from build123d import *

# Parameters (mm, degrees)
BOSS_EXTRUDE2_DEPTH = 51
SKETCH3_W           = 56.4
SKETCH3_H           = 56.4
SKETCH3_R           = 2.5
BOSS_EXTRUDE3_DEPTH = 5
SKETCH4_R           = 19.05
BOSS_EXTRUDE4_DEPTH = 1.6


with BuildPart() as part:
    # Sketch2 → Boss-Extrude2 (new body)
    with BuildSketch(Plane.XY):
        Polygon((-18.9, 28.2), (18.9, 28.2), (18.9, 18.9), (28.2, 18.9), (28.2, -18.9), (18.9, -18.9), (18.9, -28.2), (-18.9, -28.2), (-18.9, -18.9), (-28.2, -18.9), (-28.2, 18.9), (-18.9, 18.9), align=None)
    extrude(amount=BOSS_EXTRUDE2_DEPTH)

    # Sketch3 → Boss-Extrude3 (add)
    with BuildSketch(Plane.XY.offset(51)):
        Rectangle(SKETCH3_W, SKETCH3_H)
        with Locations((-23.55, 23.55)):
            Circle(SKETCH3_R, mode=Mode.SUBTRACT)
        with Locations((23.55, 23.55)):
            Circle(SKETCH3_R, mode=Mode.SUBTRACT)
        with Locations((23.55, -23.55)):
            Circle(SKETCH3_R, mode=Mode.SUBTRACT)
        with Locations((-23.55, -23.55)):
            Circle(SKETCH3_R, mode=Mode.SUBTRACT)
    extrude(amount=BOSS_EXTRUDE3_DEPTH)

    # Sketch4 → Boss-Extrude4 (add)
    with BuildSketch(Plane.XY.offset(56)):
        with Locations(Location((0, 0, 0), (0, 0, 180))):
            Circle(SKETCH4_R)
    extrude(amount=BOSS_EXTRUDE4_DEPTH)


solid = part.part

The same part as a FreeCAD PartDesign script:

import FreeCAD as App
import Part
import Sketcher

V = App.Vector

doc = App.newDocument("Part")
body = doc.addObject("PartDesign::Body", "Body")

sketch1 = body.newObject("Sketcher::SketchObject", "Sketch")
sketch1.AttachmentSupport = (doc.getObject("XY_Plane"), [""])
sketch1.MapMode = "FlatFace"
sketch1.addGeometry(Part.LineSegment(V(19, 28, 0), V(-19, 28, 0)), False)
sketch1.addGeometry(Part.LineSegment(V(-19, 28, 0), V(-19, 19, 0)), False)
sketch1.addGeometry(Part.LineSegment(V(-19, 19, 0), V(-28, 19, 0)), False)
sketch1.addGeometry(Part.LineSegment(V(-28, 19, 0), V(-28, -19, 0)), False)
sketch1.addGeometry(Part.LineSegment(V(-28, -19, 0), V(-19, -19, 0)), False)
sketch1.addGeometry(Part.LineSegment(V(-19, -19, 0), V(-19, -28, 0)), False)
sketch1.addGeometry(Part.LineSegment(V(-19, -28, 0), V(19, -28, 0)), False)
sketch1.addGeometry(Part.LineSegment(V(19, -28, 0), V(19, -19, 0)), False)
sketch1.addGeometry(Part.LineSegment(V(19, -19, 0), V(28, -19, 0)), False)
sketch1.addGeometry(Part.LineSegment(V(28, -19, 0), V(28, 19, 0)), False)
sketch1.addGeometry(Part.LineSegment(V(28, 19, 0), V(19, 19, 0)), False)
sketch1.addGeometry(Part.LineSegment(V(19, 19, 0), V(19, 28, 0)), False)
sketch1.addConstraint(Sketcher.Constraint("Coincident", 0, 2, 1, 1))
sketch1.addConstraint(Sketcher.Constraint("Coincident", 1, 2, 2, 1))
sketch1.addConstraint(Sketcher.Constraint("Coincident", 2, 2, 3, 1))
sketch1.addConstraint(Sketcher.Constraint("Coincident", 3, 2, 4, 1))
sketch1.addConstraint(Sketcher.Constraint("Coincident", 4, 2, 5, 1))
sketch1.addConstraint(Sketcher.Constraint("Coincident", 5, 2, 6, 1))
sketch1.addConstraint(Sketcher.Constraint("Coincident", 6, 2, 7, 1))
sketch1.addConstraint(Sketcher.Constraint("Coincident", 7, 2, 8, 1))
sketch1.addConstraint(Sketcher.Constraint("Coincident", 8, 2, 9, 1))
sketch1.addConstraint(Sketcher.Constraint("Coincident", 9, 2, 10, 1))
sketch1.addConstraint(Sketcher.Constraint("Coincident", 10, 2, 11, 1))
sketch1.addConstraint(Sketcher.Constraint("Coincident", 11, 2, 0, 1))
sketch1.addConstraint(Sketcher.Constraint("Horizontal", 0))
sketch1.addConstraint(Sketcher.Constraint("Vertical", 1))
sketch1.addConstraint(Sketcher.Constraint("Horizontal", 2))
sketch1.addConstraint(Sketcher.Constraint("Vertical", 3))
sketch1.addConstraint(Sketcher.Constraint("Horizontal", 4))
sketch1.addConstraint(Sketcher.Constraint("Vertical", 5))
sketch1.addConstraint(Sketcher.Constraint("Horizontal", 6))
sketch1.addConstraint(Sketcher.Constraint("Vertical", 7))
sketch1.addConstraint(Sketcher.Constraint("Horizontal", 8))
sketch1.addConstraint(Sketcher.Constraint("Vertical", 9))
sketch1.addConstraint(Sketcher.Constraint("Horizontal", 10))
sketch1.addConstraint(Sketcher.Constraint("Vertical", 11))
sketch1.addConstraint(Sketcher.Constraint("Symmetric", 0, 2, 6, 2, -1, 1))
sketch1.addConstraint(Sketcher.Constraint("Symmetric", 2, 2, 8, 2, -1, 1))
sketch1.addConstraint(Sketcher.Constraint("Symmetric", 4, 2, 10, 2, -1, 1))
sketch1.addConstraint(Sketcher.Constraint("Symmetric", 4, 2, 7, 2, -2))
sketch1.addConstraint(Sketcher.Constraint("Equal", 10, 1))
sketch1.addConstraint(Sketcher.Constraint("Equal", 6, 3))
sketch1.addConstraint(Sketcher.Constraint("DistanceX", 0, 2, 0, 1, 37.8))
sketch1.addConstraint(Sketcher.Constraint("DistanceX", 2, 2, 2, 1, 9.3))
pad1 = body.newObject("PartDesign::Pad", "Pad")
pad1.Profile = sketch1
pad1.Length = 51

sketch2 = body.newObject("Sketcher::SketchObject", "Sketch001")
sketch2.AttachmentSupport = (doc.getObject("XY_Plane"), [""])
sketch2.MapMode = "FlatFace"
sketch2.AttachmentOffset = App.Placement(V(0, 0, 51), App.Rotation())
sketch2.addGeometry(Part.LineSegment(V(-28.2, 28.2, 0), V(-28.2, -28.2, 0)), False)
sketch2.addGeometry(Part.LineSegment(V(-28.2, -28.2, 0), V(28.2, -28.2, 0)), False)
sketch2.addGeometry(Part.LineSegment(V(28.2, -28.2, 0), V(28.2, 28.2, 0)), False)
sketch2.addGeometry(Part.LineSegment(V(28.2, 28.2, 0), V(-28.2, 28.2, 0)), False)
sketch2.addGeometry(Part.Circle(V(-23.6, -23.6, 0), V(0, 0, 1), 2.5), False)
sketch2.addGeometry(Part.Circle(V(23.6, -23.6, 0), V(0, 0, 1), 2.5), False)
sketch2.addGeometry(Part.Circle(V(-23.6, 23.6, 0), V(0, 0, 1), 2.5), False)
sketch2.addGeometry(Part.Circle(V(23.6, 23.6, 0), V(0, 0, 1), 2.5), False)
sketch2.addConstraint(Sketcher.Constraint("Coincident", 0, 2, 1, 1))
sketch2.addConstraint(Sketcher.Constraint("Coincident", 1, 2, 2, 1))
sketch2.addConstraint(Sketcher.Constraint("Coincident", 2, 2, 3, 1))
sketch2.addConstraint(Sketcher.Constraint("Coincident", 3, 2, 0, 1))
sketch2.addConstraint(Sketcher.Constraint("Vertical", 0))
sketch2.addConstraint(Sketcher.Constraint("Horizontal", 1))
sketch2.addConstraint(Sketcher.Constraint("Vertical", 2))
sketch2.addConstraint(Sketcher.Constraint("Horizontal", 3))
sketch2.addConstraint(Sketcher.Constraint("Equal", 4, 5))
sketch2.addConstraint(Sketcher.Constraint("Equal", 5, 6))
sketch2.addConstraint(Sketcher.Constraint("Equal", 6, 7))
sketch2.addConstraint(Sketcher.Constraint("Symmetric", 5, 3, 6, 3, -1, 1))
sketch2.addConstraint(Sketcher.Constraint("Symmetric", 4, 3, 7, 3, -1, 1))
sketch2.addConstraint(Sketcher.Constraint("Symmetric", 0, 2, 2, 2, -1, 1))
sketch2.addConstraint(Sketcher.Constraint("Symmetric", 4, 3, 5, 3, -2))
sketch2.addConstraint(Sketcher.Constraint("Equal", 3, 0))
sketch2.addConstraint(Sketcher.Constraint("Diameter", 4, 5.0))
sketch2.addConstraint(Sketcher.Constraint("DistanceX", 1, 1, 1, 2, 56.4))
sketch2.addConstraint(Sketcher.Constraint("DistanceX", 4, 3, 5, 3, 47.1))
sketch2.addConstraint(Sketcher.Constraint("DistanceY", 4, 3, 6, 3, 47.1))
pad2 = body.newObject("PartDesign::Pad", "Pad001")
pad2.Profile = sketch2
pad2.Length = 5

sketch3 = body.newObject("Sketcher::SketchObject", "Sketch002")
sketch3.AttachmentSupport = (doc.getObject("XY_Plane"), [""])
sketch3.MapMode = "FlatFace"
sketch3.AttachmentOffset = App.Placement(V(0, 0, 56), App.Rotation())
sketch3.addGeometry(Part.Circle(V(0, 0, 0), V(0, 0, 1), 19), False)
sketch3.addConstraint(Sketcher.Constraint("Coincident", 0, 3, -1, 1))
sketch3.addConstraint(Sketcher.Constraint("Diameter", 0, 38.1))
pad3 = body.newObject("PartDesign::Pad", "Pad002")
pad3.Profile = sketch3
pad3.Length = 1.6

doc.recompute()
